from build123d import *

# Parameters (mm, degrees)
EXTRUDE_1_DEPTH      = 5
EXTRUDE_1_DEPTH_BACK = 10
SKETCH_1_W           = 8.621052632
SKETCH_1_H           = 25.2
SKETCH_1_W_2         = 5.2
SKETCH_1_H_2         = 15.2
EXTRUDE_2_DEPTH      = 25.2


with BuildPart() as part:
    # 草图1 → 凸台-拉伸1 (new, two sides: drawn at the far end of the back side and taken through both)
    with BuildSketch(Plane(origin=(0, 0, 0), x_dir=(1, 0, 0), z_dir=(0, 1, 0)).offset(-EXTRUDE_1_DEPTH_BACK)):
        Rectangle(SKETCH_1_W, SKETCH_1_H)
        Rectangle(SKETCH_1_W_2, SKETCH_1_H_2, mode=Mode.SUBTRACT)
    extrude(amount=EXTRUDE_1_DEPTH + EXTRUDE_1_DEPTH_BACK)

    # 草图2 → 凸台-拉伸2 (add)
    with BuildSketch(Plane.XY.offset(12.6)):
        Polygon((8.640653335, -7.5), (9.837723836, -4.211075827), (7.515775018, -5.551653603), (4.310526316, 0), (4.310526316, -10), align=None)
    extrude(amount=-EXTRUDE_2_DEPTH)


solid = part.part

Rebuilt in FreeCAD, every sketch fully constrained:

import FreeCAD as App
import Part
import Sketcher

V = App.Vector
Q = App.Units.Quantity


def add_polygon(sketch, points):
    """Adds a closed chain of lines whose ends are joined by coincident constraints."""
    first, n = sketch.GeometryCount, len(points)
    for a, b in zip(points, points[1:] + points[:1]):
        sketch.addGeometry(Part.LineSegment(App.Vector(*a, 0), App.Vector(*b, 0)), False)
    for i in range(n):
        sketch.addConstraint(Sketcher.Constraint("Coincident", first + i, 2, first + (i + 1) % n, 1))

doc = App.newDocument("Part")
params = doc.addObject("Spreadsheet::Sheet", "Params")
for row, (alias, value) in enumerate([
    ("sketch1_width", "5.2 mm"),
    ("sketch1_height", "25.2 mm"),
    ("sketch1_height2", "15.2 mm"),
    ("pad1_length", "5 mm"),
    ("pad1_length2", "10 mm"),
    ("sketch2_height", "10 mm"),
    ("sketch2_length", "5 mm"),
    ("sketch2_length2", "3.5 mm"),
    ("pad2_length", "25.2 mm"),
], start=1):
    params.set(f"A{row}", alias)
    params.set(f"B{row}", "=" + value)
    params.setAlias(f"B{row}", alias)

body = doc.addObject("PartDesign::Body", "Body")

# Sketch on XZ plane
sketch1 = body.newObject("Sketcher::SketchObject", "Sketch")
sketch1.AttachmentSupport = (doc.getObject("XZ_Plane"), [""])
sketch1.MapMode = "FlatFace"
add_polygon(sketch1, [(-4.310526, -12.6), (-4.310526, 12.6), (4.310526, 12.6), (4.310526, -12.6)])  # lines 0-3
add_polygon(sketch1, [(2.6, 7.6), (-2.6, 7.6), (-2.6, -7.6), (2.6, -7.6)])  # lines 4-7
sketch1.addConstraint([
    Sketcher.Constraint("Vertical", 0),
    Sketcher.Constraint("Horizontal", 1),
    Sketcher.Constraint("Vertical", 2),
    Sketcher.Constraint("Horizontal", 3),
    Sketcher.Constraint("Horizontal", 4),
    Sketcher.Constraint("Vertical", 5),
    Sketcher.Constraint("Horizontal", 6),
    Sketcher.Constraint("Vertical", 7),
    Sketcher.Constraint("Symmetric", 0, 2, 2, 2, -1, 1),
    Sketcher.Constraint("Symmetric", 4, 2, 6, 2, -1, 1),
    Sketcher.Constraint("DistanceX", 4, 2, 4, 1, 5.2),
    Sketcher.Constraint("DistanceY", 0, 1, 0, 2, 25.2),
    Sketcher.Constraint("DistanceY", 5, 2, 5, 1, 15.2),
    Sketcher.Constraint("DistanceX", 1, 1, 1, 2, 8.621053),
])
sketch1.setExpression("Constraints[18]", "Params.sketch1_width")
sketch1.setExpression("Constraints[19]", "Params.sketch1_height")
sketch1.setExpression("Constraints[20]", "Params.sketch1_height2")
pad1 = body.newObject("PartDesign::Pad", "Pad")
pad1.Profile = sketch1
pad1.Type = "TwoLengths"
pad1.setExpression("Length", "Params.pad1_length")
pad1.setExpression("Length2", "Params.pad1_length2")
pad1.Reversed = True

# Sketch on XY plane
sketch2 = body.newObject("Sketcher::SketchObject", "Sketch001")
sketch2.AttachmentSupport = (doc.getObject("XY_Plane"), [""])
sketch2.MapMode = "FlatFace"
sketch2.AttachmentOffset = App.Placement(V(0, 0, 12.6), App.Rotation())
add_polygon(sketch2, [(8.640653, -7.5), (9.837724, -4.211076), (7.515775, -5.551654), (4.310526, 0), (4.310526, -10)])  # lines 0-4
sketch2.addConstraint([
    Sketcher.Constraint("Vertical", 3),
    Sketcher.Constraint("PointOnObject", 2, 2, -1),
    Sketcher.Constraint("Perpendicular", 1, 2),
    Sketcher.Constraint("Perpendicular", 2, 4),
    Sketcher.Constraint("DistanceY", 3, 2, 3, 1, 10.0),
    Sketcher.Constraint("Angle", 0, Q("70 deg")),
    Sketcher.Constraint("Angle", 1, Q("-150 deg")),
    Sketcher.Constraint("Distance", 4, 5.0),
    Sketcher.Constraint("Distance", 0, 3.5),
    Sketcher.Constraint("DistanceX", -1, 1, 0, 2, 9.837724),
])
sketch2.setExpression("Constraints[9]", "Params.sketch2_height")
sketch2.setExpression("Constraints[12]", "Params.sketch2_length")
sketch2.setExpression("Constraints[13]", "Params.sketch2_length2")
pad2 = body.newObject("PartDesign::Pad", "Pad001")
pad2.Profile = sketch2
pad2.setExpression("Length", "Params.pad2_length")
pad2.Reversed = True

doc.recompute()
